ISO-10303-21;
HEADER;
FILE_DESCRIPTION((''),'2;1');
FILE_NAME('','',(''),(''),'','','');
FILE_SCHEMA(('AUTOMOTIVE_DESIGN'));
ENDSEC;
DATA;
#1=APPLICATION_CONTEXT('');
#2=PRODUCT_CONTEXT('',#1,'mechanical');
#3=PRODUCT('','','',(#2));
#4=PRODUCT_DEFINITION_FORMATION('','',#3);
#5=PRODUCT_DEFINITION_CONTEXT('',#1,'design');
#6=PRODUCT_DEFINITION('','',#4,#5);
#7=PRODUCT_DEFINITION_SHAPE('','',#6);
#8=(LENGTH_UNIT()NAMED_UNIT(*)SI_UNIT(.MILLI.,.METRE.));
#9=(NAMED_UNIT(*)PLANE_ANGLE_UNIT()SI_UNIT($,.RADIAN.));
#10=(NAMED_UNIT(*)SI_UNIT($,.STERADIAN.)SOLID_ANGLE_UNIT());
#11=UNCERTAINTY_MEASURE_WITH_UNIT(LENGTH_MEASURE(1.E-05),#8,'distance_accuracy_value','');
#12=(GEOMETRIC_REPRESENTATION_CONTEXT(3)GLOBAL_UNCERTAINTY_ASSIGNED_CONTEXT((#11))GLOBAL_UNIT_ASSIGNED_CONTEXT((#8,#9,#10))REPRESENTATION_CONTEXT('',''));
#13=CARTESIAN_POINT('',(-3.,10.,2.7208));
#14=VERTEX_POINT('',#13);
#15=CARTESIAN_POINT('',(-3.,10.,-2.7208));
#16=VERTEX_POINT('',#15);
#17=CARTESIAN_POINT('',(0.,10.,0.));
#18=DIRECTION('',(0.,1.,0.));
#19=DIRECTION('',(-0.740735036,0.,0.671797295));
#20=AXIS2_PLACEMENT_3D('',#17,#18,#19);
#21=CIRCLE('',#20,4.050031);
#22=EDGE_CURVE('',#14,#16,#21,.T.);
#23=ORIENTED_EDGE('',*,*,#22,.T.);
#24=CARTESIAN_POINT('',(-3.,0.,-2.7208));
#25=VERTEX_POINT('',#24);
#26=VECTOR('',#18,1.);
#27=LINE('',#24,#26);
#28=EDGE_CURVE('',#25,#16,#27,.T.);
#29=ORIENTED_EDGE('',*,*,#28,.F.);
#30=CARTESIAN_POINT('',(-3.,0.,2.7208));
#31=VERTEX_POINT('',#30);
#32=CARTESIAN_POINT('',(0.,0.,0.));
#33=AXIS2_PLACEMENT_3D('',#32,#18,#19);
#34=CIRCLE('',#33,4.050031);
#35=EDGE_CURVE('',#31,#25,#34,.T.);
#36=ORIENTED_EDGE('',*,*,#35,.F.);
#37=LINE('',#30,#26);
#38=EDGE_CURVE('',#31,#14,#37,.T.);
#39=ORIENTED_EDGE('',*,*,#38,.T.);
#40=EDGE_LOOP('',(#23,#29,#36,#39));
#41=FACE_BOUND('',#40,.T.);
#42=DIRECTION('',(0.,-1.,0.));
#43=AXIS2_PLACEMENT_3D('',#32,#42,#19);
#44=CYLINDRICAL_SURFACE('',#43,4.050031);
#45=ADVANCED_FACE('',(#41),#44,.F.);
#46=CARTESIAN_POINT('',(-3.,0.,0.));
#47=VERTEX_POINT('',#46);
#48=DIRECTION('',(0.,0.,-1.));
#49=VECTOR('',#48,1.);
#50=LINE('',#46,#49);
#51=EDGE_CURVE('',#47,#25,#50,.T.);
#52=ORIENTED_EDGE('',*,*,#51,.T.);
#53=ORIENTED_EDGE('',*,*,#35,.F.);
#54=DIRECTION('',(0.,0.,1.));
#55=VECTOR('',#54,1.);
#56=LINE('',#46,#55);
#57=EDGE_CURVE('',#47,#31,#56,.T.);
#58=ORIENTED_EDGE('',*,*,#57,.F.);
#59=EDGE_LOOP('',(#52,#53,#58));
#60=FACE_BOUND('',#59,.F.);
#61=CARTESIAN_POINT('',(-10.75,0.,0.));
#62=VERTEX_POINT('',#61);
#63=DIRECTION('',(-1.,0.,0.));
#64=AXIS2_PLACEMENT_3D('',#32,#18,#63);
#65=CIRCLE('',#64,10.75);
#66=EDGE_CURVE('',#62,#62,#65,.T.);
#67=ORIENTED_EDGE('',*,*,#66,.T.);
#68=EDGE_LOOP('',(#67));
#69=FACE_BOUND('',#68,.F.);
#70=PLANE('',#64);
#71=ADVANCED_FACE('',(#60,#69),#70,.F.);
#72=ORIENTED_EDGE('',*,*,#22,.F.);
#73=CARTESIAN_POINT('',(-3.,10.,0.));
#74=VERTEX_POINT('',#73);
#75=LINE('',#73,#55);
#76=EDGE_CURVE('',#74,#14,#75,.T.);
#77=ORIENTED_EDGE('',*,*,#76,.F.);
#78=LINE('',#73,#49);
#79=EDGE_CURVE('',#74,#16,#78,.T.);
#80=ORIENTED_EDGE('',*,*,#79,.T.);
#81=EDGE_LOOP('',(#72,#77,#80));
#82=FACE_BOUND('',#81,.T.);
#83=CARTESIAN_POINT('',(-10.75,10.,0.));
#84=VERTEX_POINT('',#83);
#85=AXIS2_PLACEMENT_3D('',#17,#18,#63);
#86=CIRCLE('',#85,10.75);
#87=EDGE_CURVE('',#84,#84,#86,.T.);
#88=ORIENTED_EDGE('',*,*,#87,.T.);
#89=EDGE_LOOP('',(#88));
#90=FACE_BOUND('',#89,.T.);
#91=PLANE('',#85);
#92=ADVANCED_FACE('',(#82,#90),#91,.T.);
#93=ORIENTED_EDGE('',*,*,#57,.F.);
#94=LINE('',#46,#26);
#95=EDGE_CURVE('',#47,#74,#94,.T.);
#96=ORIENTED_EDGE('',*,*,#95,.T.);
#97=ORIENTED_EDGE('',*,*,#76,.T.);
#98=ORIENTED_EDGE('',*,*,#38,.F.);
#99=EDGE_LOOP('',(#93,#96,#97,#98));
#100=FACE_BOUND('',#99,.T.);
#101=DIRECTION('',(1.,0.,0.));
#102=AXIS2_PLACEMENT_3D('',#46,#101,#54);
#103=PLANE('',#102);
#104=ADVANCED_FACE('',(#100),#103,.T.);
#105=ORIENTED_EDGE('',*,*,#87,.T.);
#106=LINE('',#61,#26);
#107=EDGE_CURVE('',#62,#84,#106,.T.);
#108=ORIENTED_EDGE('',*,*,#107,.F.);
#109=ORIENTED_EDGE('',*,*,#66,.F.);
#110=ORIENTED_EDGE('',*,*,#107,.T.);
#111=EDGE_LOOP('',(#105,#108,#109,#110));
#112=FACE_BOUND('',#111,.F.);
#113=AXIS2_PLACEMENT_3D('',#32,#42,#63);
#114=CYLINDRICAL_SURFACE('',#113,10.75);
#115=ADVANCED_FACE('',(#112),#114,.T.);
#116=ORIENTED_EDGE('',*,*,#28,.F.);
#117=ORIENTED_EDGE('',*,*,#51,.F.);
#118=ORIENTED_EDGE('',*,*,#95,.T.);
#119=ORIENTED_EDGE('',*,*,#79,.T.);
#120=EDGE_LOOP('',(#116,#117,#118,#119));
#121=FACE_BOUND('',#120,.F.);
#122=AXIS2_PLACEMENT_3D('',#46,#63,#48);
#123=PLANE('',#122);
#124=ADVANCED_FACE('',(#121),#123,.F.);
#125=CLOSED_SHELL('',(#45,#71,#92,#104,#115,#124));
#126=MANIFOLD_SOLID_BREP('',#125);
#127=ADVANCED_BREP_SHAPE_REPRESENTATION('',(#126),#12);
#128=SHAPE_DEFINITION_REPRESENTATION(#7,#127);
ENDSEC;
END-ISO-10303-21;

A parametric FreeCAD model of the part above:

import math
import FreeCAD as App
import Part
import Sketcher
from FreeCAD import Vector
Q = App.Units.Quantity

doc = App.newDocument("Part")
body = doc.addObject("PartDesign::Body", "Body")

# Sketch on XZ plane
sketch1 = doc.addObject("Sketcher::SketchObject", "Sketch")
body.addObject(sketch1)
sketch1.AttachmentSupport = (doc.XZ_Plane, [""])
sketch1.MapMode = "FlatFace"
sketch1.addGeometry([
    Part.Circle(Vector(0, 0, 0), Vector(0, 0, 1), 10.75),
    Part.ArcOfCircle(Part.Circle(Vector(0, 0, 0), Vector(0, 0, 1), 4.050031), math.radians(-137.794067), math.radians(137.794067)),
    Part.LineSegment(Vector(-3, 2.7208, 0), Vector(-3, -2.7208, 0)),
], False)
sketch1.addConstraint([
    Sketcher.Constraint("Coincident", 1, 1, 2, 2),
    Sketcher.Constraint("Coincident", 2, 1, 1, 2),
    Sketcher.Constraint("Vertical", 2),
    Sketcher.Constraint("Coincident", 0, 3, -1, 1),
    Sketcher.Constraint("Coincident", 1, 3, -1, 1),
    Sketcher.Constraint("Diameter", 0, Q("21.5 mm")),
    Sketcher.Constraint("Radius", 1, Q("4.05 mm")),
    Sketcher.Constraint("DistanceX", 1, 1, -1, 1, Q("3 mm")),
])
pad1 = doc.addObject("PartDesign::Pad", "Pad")
body.addObject(pad1)
pad1.Profile = sketch1
pad1.Length = 10
pad1.Reversed = True

doc.recompute()
